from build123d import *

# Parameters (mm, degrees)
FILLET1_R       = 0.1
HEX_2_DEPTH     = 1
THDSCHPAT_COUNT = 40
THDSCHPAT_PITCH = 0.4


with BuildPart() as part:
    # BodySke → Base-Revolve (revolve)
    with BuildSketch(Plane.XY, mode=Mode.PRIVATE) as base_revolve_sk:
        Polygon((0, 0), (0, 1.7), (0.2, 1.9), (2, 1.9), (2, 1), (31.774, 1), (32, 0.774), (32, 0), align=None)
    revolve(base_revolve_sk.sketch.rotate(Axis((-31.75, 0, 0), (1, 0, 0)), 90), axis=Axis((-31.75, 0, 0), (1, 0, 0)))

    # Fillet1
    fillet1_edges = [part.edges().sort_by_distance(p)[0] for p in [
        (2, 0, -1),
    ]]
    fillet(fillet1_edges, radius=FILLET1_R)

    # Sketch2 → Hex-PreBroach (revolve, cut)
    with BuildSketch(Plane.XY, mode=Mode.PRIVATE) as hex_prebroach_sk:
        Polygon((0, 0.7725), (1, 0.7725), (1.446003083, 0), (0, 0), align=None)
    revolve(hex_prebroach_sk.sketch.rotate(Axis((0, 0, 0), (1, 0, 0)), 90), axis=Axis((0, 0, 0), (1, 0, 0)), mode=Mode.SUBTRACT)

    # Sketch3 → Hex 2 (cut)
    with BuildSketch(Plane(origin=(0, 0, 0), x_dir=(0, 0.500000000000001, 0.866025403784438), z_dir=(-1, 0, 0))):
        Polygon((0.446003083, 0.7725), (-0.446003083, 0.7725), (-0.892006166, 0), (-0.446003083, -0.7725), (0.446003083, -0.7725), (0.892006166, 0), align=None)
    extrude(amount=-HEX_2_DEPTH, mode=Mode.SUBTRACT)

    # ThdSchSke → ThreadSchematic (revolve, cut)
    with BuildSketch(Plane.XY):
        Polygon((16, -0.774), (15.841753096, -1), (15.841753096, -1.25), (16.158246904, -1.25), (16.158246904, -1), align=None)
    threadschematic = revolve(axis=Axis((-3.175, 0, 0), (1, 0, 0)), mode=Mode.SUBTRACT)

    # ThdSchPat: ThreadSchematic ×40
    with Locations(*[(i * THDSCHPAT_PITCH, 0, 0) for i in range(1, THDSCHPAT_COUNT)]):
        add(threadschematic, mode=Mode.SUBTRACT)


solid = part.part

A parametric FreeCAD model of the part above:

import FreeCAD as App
import Part
import Sketcher
from FreeCAD import Vector
Q = App.Units.Quantity


def edges_at(feature, points):
    """Names of the edges that pass closest to the given points."""
    edges = feature.Shape.Edges
    near = lambda p: min(range(len(edges)), key=lambda i: edges[i].distToShape(Part.Vertex(*p))[0])
    return sorted({f"Edge{near(p) + 1}" for p in points})

doc = App.newDocument("Part")
body = doc.addObject("PartDesign::Body", "Body")

sketch1 = body.newObject("Sketcher::SketchObject", "Sketch")
sketch1.AttachmentSupport = (doc.getObject("XY_Plane"), [""])
sketch1.MapMode = "FlatFace"
sketch1.addGeometry(Part.LineSegment(Vector(0, 1.7, 0), Vector(0, 0, 0)), False)
sketch1.addGeometry(Part.LineSegment(Vector(0, 0, 0), Vector(32, 0, 0)), False)
sketch1.addGeometry(Part.LineSegment(Vector(32, 0, 0), Vector(32, 0.77, 0)), False)
sketch1.addGeometry(Part.LineSegment(Vector(32, 0.77, 0), Vector(31.77, 1, 0)), False)
sketch1.addGeometry(Part.LineSegment(Vector(31.77, 1, 0), Vector(2, 1, 0)), False)
sketch1.addGeometry(Part.LineSegment(Vector(2, 1, 0), Vector(2, 1.9, 0)), False)
sketch1.addGeometry(Part.LineSegment(Vector(2, 1.9, 0), Vector(0.2, 1.9, 0)), False)
sketch1.addGeometry(Part.LineSegment(Vector(0.2, 1.9, 0), Vector(0, 1.7, 0)), False)
sketch1.addConstraint(Sketcher.Constraint("Coincident", 0, 2, 1, 1))
sketch1.addConstraint(Sketcher.Constraint("Coincident", 1, 2, 2, 1))
sketch1.addConstraint(Sketcher.Constraint("Coincident", 2, 2, 3, 1))
sketch1.addConstraint(Sketcher.Constraint("Coincident", 3, 2, 4, 1))
sketch1.addConstraint(Sketcher.Constraint("Coincident", 4, 2, 5, 1))
sketch1.addConstraint(Sketcher.Constraint("Coincident", 5, 2, 6, 1))
sketch1.addConstraint(Sketcher.Constraint("Coincident", 6, 2, 7, 1))
sketch1.addConstraint(Sketcher.Constraint("Coincident", 7, 2, 0, 1))
sketch1.addConstraint(Sketcher.Constraint("Vertical", 0))
sketch1.addConstraint(Sketcher.Constraint("Horizontal", 1))
sketch1.addConstraint(Sketcher.Constraint("Vertical", 2))
sketch1.addConstraint(Sketcher.Constraint("Horizontal", 4))
sketch1.addConstraint(Sketcher.Constraint("Vertical", 5))
sketch1.addConstraint(Sketcher.Constraint("Horizontal", 6))
sketch1.addConstraint(Sketcher.Constraint("Coincident", 0, 2, -1, 1))
sketch1.addConstraint(Sketcher.Constraint("Perpendicular", 3, 7))
sketch1.addConstraint(Sketcher.Constraint("DistanceX", 1, 1, 1, 2, 32.0))
sketch1.addConstraint(Sketcher.Constraint("Angle", 3, Q("135 deg")))
sketch1.addConstraint(Sketcher.Constraint("DistanceX", 6, 2, 6, 1, 1.8))
sketch1.addConstraint(Sketcher.Constraint("DistanceY", 0, 2, 0, 1, 1.7))
sketch1.addConstraint(Sketcher.Constraint("DistanceY", 5, 1, 5, 2, 0.9))
sketch1.addConstraint(Sketcher.Constraint("DistanceY", -1, 1, 3, 2, 1.0))
sketch1.addConstraint(Sketcher.Constraint("DistanceX", 4, 2, 4, 1, 29.774))
revolution = body.newObject("PartDesign::Revolution", "Revolution")
revolution.Profile = sketch1
revolution.ReferenceAxis = (sketch1, ["H_Axis"])
revolution.Angle = 360
doc.recompute()

fillet = body.newObject("PartDesign::Fillet", "Fillet")
fillet.Base = (revolution, edges_at(revolution, [(2, 0, -1)]))
fillet.Radius = 0.1

sketch2 = body.newObject("Sketcher::SketchObject", "Sketch001")
sketch2.AttachmentSupport = (doc.getObject("XY_Plane"), [""])
sketch2.MapMode = "FlatFace"
sketch2.addGeometry(Part.LineSegment(Vector(1, 0.8, 0), Vector(0, 0.8, 0)), False)
sketch2.addGeometry(Part.LineSegment(Vector(0, 0.8, 0), Vector(0, 0, 0)), False)
sketch2.addGeometry(Part.LineSegment(Vector(0, 0, 0), Vector(1.4, 0, 0)), False)
sketch2.addGeometry(Part.LineSegment(Vector(1.4, 0, 0), Vector(1, 0.8, 0)), False)
sketch2.addConstraint(Sketcher.Constraint("Coincident", 0, 2, 1, 1))
sketch2.addConstraint(Sketcher.Constraint("Coincident", 1, 2, 2, 1))
sketch2.addConstraint(Sketcher.Constraint("Coincident", 2, 2, 3, 1))
sketch2.addConstraint(Sketcher.Constraint("Coincident", 3, 2, 0, 1))
sketch2.addConstraint(Sketcher.Constraint("Horizontal", 0))
sketch2.addConstraint(Sketcher.Constraint("Vertical", 1))
sketch2.addConstraint(Sketcher.Constraint("Horizontal", 2))
sketch2.addConstraint(Sketcher.Constraint("Coincident", 1, 2, -1, 1))
sketch2.addConstraint(Sketcher.Constraint("DistanceX", 0, 2, 0, 1, 1.0))
sketch2.addConstraint(Sketcher.Constraint("Angle", 3, Q("120 deg")))
sketch2.addConstraint(Sketcher.Constraint("DistanceY", 1, 2, 1, 1, 0.7725))
groove = body.newObject("PartDesign::Groove", "Groove")
groove.Profile = sketch2
groove.ReferenceAxis = (sketch2, ["H_Axis"])
groove.Angle = 360

sketch3 = body.newObject("Sketcher::SketchObject", "Sketch002")
sketch3.AttachmentSupport = (doc.getObject("YZ_Plane"), [""])
sketch3.MapMode = "FlatFace"
sketch3.addGeometry(Part.LineSegment(Vector(0.9, 0, 0), Vector(0.4, -0.8, 0)), False)
sketch3.addGeometry(Part.LineSegment(Vector(0.4, -0.8, 0), Vector(-0.4, -0.8, 0)), False)
sketch3.addGeometry(Part.LineSegment(Vector(-0.4, -0.8, 0), Vector(-0.9, 0, 0)), False)
sketch3.addGeometry(Part.LineSegment(Vector(-0.9, 0, 0), Vector(-0.4, 0.8, 0)), False)
sketch3.addGeometry(Part.LineSegment(Vector(-0.4, 0.8, 0), Vector(0.4, 0.8, 0)), False)
sketch3.addGeometry(Part.LineSegment(Vector(0.4, 0.8, 0), Vector(0.9, 0, 0)), False)
sketch3.addConstraint(Sketcher.Constraint("Coincident", 0, 2, 1, 1))
sketch3.addConstraint(Sketcher.Constraint("Coincident", 1, 2, 2, 1))
sketch3.addConstraint(Sketcher.Constraint("Coincident", 2, 2, 3, 1))
sketch3.addConstraint(Sketcher.Constraint("Coincident", 3, 2, 4, 1))
sketch3.addConstraint(Sketcher.Constraint("Coincident", 4, 2, 5, 1))
sketch3.addConstraint(Sketcher.Constraint("Coincident", 5, 2, 0, 1))
sketch3.addConstraint(Sketcher.Constraint("Horizontal", 1))
sketch3.addConstraint(Sketcher.Constraint("Horizontal", 4))
sketch3.addConstraint(Sketcher.Constraint("Symmetric", 0, 2, 3, 2, -1, 1))
sketch3.addConstraint(Sketcher.Constraint("Symmetric", 2, 2, 5, 2, -1, 1))
sketch3.addConstraint(Sketcher.Constraint("PointOnObject", 2, 2, -1))
sketch3.addConstraint(Sketcher.Constraint("Parallel", 2, 5))
sketch3.addConstraint(Sketcher.Constraint("Vertical", 1, 2, 3, 2))
sketch3.addConstraint(Sketcher.Constraint("Angle", 0, Q("-120 deg")))
sketch3.addConstraint(Sketcher.Constraint("DistanceY", 1, 2, 3, 2, 1.545))
sketch3.addConstraint(Sketcher.Constraint("DistanceX", 1, 2, 1, 1, 0.892006))
pocket1 = body.newObject("PartDesign::Pocket", "Pocket")
pocket1.Profile = sketch3
pocket1.Length = 1
pocket1.Reversed = True

sketch4 = body.newObject("Sketcher::SketchObject", "Sketch003")
sketch4.AttachmentSupport = (doc.getObject("XY_Plane"), [""])
sketch4.MapMode = "FlatFace"
sketch4.addGeometry(Part.LineSegment(Vector(16, -0.77, 0), Vector(15.84, -1, 0)), False)
sketch4.addGeometry(Part.LineSegment(Vector(15.84, -1, 0), Vector(15.84, -1.25, 0)), False)
sketch4.addGeometry(Part.LineSegment(Vector(15.84, -1.25, 0), Vector(16.16, -1.25, 0)), False)
sketch4.addGeometry(Part.LineSegment(Vector(16.16, -1.25, 0), Vector(16.16, -1, 0)), False)
sketch4.addGeometry(Part.LineSegment(Vector(16.16, -1, 0), Vector(16, -0.77, 0)), False)
sketch4.addConstraint(Sketcher.Constraint("Coincident", 0, 2, 1, 1))
sketch4.addConstraint(Sketcher.Constraint("Coincident", 1, 2, 2, 1))
sketch4.addConstraint(Sketcher.Constraint("Coincident", 2, 2, 3, 1))
sketch4.addConstraint(Sketcher.Constraint("Coincident", 3, 2, 4, 1))
sketch4.addConstraint(Sketcher.Constraint("Coincident", 4, 2, 0, 1))
sketch4.addConstraint(Sketcher.Constraint("Vertical", 1))
sketch4.addConstraint(Sketcher.Constraint("Horizontal", 2))
sketch4.addConstraint(Sketcher.Constraint("Vertical", 3))
sketch4.addConstraint(Sketcher.Constraint("Horizontal", 0, 2, 3, 2))
sketch4.addConstraint(Sketcher.Constraint("Equal", 0, 4))
sketch4.addConstraint(Sketcher.Constraint("Angle", 0, Q("-125 deg")))
sketch4.addConstraint(Sketcher.Constraint("DistanceY", 0, 2, -1, 1, 1.0))
sketch4.addConstraint(Sketcher.Constraint("DistanceX", -1, 1, 4, 2, 16.0))
sketch4.addConstraint(Sketcher.Constraint("DistanceY", 1, 2, 1, 1, 0.25))
sketch4.addConstraint(Sketcher.Constraint("DistanceY", 4, 2, -1, 1, 0.774))
groove2 = body.newObject("PartDesign::Groove", "Groove001")
groove2.Profile = sketch4
groove2.ReferenceAxis = (sketch4, ["H_Axis"])
groove2.Angle = 360
doc.recompute()

linearpattern = body.newObject("PartDesign::LinearPattern", "LinearPattern")
linearpattern.Originals = [groove2]
linearpattern.Direction = (doc.getObject("X_Axis"), [""])
linearpattern.Mode = "offset"
linearpattern.Offset = 0.4
linearpattern.Occurrences = 40
body.Tip = linearpattern

doc.recompute()
